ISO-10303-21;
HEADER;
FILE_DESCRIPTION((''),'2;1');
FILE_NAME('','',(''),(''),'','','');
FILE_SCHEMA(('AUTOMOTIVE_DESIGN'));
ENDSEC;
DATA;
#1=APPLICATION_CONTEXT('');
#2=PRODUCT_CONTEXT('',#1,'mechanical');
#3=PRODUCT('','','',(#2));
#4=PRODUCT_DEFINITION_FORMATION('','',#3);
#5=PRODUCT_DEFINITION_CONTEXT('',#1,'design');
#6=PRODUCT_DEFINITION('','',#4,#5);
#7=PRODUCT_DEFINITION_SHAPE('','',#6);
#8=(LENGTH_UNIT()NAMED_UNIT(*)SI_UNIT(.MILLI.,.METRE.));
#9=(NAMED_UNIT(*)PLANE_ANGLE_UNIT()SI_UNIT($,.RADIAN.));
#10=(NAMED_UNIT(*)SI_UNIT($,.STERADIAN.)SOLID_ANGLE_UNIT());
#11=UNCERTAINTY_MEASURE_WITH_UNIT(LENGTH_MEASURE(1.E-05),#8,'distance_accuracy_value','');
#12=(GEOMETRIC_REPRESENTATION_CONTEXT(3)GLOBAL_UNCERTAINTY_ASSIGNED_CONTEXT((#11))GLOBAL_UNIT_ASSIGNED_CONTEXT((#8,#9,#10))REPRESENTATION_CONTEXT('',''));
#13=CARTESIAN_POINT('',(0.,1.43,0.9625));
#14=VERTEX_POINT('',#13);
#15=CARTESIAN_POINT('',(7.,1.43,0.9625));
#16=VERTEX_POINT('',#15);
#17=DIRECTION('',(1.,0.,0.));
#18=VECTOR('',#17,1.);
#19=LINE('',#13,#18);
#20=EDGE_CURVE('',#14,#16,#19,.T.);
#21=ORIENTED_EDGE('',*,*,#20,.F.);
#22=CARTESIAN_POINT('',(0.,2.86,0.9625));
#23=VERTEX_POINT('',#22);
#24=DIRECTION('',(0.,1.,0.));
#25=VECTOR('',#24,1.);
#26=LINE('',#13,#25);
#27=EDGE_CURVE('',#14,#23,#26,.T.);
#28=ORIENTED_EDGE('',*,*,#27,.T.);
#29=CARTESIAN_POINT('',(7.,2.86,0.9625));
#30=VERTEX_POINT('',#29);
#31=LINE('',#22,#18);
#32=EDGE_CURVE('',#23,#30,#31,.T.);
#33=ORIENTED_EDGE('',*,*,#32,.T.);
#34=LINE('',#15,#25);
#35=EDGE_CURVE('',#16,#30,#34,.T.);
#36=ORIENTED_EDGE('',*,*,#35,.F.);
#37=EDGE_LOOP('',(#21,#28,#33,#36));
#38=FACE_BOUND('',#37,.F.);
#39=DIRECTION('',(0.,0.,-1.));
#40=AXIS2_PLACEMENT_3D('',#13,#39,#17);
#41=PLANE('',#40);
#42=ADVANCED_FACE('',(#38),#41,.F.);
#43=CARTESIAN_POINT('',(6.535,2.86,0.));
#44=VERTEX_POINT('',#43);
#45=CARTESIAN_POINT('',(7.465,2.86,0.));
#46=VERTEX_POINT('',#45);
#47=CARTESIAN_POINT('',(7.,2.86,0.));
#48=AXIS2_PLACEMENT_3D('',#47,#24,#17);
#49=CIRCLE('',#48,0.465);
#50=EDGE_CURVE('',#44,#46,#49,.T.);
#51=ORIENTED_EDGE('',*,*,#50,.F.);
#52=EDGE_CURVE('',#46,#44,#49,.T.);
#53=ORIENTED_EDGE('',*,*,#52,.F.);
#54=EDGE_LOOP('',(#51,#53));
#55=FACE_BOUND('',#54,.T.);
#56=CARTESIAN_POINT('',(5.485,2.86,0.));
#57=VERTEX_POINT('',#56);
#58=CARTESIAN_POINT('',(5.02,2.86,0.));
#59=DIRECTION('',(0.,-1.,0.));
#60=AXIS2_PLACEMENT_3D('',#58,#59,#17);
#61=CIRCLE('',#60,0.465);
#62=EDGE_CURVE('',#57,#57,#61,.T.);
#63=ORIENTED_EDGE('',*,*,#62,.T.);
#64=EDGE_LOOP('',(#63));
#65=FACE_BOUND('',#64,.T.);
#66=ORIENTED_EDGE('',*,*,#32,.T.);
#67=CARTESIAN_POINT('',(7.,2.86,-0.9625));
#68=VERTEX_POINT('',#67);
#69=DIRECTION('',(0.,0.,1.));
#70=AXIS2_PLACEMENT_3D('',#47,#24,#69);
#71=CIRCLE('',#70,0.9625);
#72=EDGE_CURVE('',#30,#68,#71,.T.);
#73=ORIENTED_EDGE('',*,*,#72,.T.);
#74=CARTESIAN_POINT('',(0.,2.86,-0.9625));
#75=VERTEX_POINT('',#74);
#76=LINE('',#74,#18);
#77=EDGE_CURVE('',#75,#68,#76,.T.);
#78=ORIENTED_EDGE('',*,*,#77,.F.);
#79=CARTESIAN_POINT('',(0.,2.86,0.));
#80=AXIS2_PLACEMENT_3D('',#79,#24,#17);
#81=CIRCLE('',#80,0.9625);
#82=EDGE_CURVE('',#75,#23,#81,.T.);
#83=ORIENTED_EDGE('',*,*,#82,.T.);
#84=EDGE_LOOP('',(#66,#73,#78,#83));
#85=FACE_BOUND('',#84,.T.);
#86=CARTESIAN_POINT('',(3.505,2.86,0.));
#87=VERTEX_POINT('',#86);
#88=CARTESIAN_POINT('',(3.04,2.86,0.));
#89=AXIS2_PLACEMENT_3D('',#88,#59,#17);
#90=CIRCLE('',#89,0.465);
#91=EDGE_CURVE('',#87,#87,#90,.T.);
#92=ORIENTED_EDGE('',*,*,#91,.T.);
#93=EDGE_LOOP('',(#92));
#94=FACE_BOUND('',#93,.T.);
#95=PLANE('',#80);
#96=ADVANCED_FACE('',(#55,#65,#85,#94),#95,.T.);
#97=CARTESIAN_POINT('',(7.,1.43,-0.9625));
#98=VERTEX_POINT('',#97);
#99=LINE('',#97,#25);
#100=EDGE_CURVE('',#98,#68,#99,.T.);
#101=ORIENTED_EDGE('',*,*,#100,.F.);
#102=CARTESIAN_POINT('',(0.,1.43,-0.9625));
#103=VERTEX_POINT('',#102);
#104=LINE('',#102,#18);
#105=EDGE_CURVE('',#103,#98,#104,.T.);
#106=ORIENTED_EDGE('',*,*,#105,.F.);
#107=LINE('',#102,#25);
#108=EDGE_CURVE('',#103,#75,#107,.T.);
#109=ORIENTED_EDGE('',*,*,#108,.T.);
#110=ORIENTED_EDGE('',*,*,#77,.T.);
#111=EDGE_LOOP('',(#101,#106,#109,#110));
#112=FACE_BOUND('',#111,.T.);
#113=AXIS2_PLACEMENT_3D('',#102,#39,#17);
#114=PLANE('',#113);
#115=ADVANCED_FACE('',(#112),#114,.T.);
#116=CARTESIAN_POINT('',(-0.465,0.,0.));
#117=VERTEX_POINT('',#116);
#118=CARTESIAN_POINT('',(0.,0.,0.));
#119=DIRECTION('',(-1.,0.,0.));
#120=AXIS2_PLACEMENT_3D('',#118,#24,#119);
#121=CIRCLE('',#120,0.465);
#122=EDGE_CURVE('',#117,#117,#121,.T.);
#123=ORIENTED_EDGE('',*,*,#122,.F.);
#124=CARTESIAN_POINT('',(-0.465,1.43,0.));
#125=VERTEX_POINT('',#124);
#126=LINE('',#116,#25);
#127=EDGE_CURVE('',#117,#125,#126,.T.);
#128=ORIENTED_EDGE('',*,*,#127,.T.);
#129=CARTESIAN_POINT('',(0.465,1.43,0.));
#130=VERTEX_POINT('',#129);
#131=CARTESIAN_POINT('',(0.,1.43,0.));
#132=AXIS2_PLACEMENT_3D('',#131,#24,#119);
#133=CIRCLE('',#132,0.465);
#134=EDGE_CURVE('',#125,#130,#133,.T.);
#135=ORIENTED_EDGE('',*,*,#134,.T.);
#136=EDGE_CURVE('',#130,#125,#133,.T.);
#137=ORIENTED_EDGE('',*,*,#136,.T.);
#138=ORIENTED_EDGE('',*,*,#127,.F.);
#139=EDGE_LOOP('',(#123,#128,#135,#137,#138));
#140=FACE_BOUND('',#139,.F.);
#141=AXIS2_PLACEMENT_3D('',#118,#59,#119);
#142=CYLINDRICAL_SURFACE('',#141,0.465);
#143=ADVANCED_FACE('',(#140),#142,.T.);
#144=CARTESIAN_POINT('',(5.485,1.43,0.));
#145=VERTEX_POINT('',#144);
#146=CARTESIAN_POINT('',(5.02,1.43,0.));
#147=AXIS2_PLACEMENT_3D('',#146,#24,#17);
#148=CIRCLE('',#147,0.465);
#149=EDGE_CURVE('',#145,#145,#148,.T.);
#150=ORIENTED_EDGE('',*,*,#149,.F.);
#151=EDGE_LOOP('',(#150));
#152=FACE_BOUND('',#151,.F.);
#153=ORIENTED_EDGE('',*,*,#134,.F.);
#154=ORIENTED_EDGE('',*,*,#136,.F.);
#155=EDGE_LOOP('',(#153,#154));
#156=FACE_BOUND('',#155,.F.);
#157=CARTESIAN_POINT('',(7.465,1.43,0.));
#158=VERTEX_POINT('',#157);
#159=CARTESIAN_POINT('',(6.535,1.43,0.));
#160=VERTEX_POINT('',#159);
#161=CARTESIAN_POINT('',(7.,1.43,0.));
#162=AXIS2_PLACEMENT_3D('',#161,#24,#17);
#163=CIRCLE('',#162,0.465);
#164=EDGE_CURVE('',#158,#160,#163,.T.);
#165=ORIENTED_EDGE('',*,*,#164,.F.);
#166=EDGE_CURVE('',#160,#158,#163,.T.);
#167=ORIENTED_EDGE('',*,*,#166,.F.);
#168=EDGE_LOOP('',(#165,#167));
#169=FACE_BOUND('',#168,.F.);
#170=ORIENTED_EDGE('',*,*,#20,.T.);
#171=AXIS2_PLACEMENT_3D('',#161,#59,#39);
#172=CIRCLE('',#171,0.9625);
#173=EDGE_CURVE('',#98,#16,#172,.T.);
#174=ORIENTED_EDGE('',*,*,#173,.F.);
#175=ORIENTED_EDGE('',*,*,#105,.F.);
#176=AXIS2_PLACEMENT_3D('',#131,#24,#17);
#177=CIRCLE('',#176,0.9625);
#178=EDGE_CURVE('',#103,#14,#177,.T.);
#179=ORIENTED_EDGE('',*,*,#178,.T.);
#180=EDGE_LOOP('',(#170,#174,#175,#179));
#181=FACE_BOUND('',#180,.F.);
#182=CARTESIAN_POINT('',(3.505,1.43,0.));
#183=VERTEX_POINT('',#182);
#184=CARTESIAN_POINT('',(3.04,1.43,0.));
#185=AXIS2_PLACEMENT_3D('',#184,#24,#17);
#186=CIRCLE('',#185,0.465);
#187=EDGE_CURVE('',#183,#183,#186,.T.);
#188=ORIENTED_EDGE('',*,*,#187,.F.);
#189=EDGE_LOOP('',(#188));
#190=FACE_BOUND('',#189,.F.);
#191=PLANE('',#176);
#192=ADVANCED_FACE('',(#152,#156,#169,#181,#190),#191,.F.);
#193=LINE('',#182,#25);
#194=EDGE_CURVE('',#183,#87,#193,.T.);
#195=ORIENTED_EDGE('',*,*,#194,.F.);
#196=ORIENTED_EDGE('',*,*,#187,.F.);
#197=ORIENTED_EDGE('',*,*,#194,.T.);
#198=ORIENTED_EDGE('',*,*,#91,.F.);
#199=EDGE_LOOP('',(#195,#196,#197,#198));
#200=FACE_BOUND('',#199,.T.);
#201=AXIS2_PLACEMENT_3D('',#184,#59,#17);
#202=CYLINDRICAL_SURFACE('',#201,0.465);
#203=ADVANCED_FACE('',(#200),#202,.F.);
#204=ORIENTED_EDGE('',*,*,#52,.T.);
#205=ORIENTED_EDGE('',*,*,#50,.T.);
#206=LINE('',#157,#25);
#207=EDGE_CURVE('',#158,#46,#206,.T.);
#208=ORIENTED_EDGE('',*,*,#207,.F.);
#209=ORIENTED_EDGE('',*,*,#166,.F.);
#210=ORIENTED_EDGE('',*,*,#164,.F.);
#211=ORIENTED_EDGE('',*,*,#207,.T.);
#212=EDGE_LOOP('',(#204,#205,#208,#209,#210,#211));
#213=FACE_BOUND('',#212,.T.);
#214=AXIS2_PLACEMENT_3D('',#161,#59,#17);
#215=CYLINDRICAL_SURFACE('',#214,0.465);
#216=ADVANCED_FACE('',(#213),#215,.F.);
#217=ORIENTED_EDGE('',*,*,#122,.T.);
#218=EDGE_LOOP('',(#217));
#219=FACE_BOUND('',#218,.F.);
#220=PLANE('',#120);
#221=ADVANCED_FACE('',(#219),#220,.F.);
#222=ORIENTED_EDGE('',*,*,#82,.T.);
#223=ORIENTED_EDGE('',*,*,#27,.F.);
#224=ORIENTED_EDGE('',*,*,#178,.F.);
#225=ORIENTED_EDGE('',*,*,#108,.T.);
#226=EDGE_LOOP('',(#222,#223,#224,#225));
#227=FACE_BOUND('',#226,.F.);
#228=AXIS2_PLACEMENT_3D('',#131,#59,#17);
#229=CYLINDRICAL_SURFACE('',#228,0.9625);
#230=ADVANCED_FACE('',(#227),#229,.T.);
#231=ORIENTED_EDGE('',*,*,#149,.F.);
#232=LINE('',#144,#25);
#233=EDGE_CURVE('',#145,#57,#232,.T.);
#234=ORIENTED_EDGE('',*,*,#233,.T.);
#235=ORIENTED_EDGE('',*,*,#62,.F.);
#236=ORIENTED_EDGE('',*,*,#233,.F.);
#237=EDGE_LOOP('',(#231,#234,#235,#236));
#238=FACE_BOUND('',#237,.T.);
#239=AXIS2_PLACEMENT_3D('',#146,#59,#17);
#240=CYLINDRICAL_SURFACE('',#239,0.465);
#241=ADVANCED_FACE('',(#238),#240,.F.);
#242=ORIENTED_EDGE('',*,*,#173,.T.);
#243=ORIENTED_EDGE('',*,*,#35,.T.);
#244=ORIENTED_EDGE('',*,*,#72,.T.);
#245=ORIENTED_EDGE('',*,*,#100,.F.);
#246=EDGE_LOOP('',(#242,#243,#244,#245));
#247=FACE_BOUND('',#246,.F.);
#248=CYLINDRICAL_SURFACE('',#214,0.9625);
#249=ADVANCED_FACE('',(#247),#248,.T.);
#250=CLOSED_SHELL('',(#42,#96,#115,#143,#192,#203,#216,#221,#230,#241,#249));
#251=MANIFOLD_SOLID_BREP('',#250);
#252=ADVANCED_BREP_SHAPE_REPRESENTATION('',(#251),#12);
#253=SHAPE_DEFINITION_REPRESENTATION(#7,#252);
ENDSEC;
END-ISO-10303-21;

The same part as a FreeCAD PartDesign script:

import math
import FreeCAD as App
import Part
import Sketcher

V = App.Vector

doc = App.newDocument("Part")
params = doc.addObject("Spreadsheet::Sheet", "Params")
for row, (alias, value) in enumerate([
    ("sketch1_diameter", "0.93 mm"),
    ("pad1_length", "1.43 mm"),
    ("sketch2_diameter", "0.93 mm"),
    ("sketch2_width", "7 mm"),
    ("pad2_length", "1.43 mm"),
], start=1):
    params.set(f"A{row}", alias)
    params.set(f"B{row}", "=" + value)
    params.setAlias(f"B{row}", alias)

body = doc.addObject("PartDesign::Body", "Body")

# Sketch on XZ plane
sketch1 = doc.addObject("Sketcher::SketchObject", "Sketch")
body.addObject(sketch1)
sketch1.AttachmentSupport = (doc.XZ_Plane, [""])
sketch1.MapMode = "FlatFace"
sketch1.addGeometry(Part.Circle(V(0, 0, 0), V(0, 0, 1), 0.47), False)
sketch1.addConstraint(Sketcher.Constraint("Coincident", 0, 3, -1, 1))
sketch1.addConstraint(Sketcher.Constraint("Diameter", 0, 0.93))
sketch1.setExpression("Constraints[1]", "Params.sketch1_diameter")
pad1 = doc.addObject("PartDesign::Pad", "Pad")
body.addObject(pad1)
pad1.Profile = sketch1
pad1.setExpression("Length", "Params.pad1_length")
pad1.Reversed = True

# Sketch on XZ plane
sketch2 = doc.addObject("Sketcher::SketchObject", "Sketch001")
body.addObject(sketch2)
sketch2.AttachmentSupport = (doc.XZ_Plane, [""])
sketch2.MapMode = "FlatFace"
sketch2.AttachmentOffset = App.Placement(V(0, 0, -1.43), App.Rotation())
sketch2.addGeometry(Part.ArcOfCircle(Part.Circle(V(0, 0, 0), V(0, 0, 1), 0.96), math.radians(90), math.radians(270)), False)
sketch2.addGeometry(Part.LineSegment(V(0, 0.96, 0), V(7, 0.96, 0)), False)
sketch2.addGeometry(Part.ArcOfCircle(Part.Circle(V(7, 0, 0), V(0, 0, 1), 0.96), math.radians(-90), math.radians(90)), False)
sketch2.addGeometry(Part.LineSegment(V(7, -0.96, 0), V(0, -0.96, 0)), False)
sketch2.addGeometry(Part.Circle(V(3.04, 0, 0), V(0, 0, 1), 0.47), False)
sketch2.addGeometry(Part.Circle(V(5.02, 0, 0), V(0, 0, 1), 0.47), False)
sketch2.addGeometry(Part.Circle(V(7, 0, 0), V(0, 0, 1), 0.47), False)
sketch2.addConstraint(Sketcher.Constraint("Tangent", 0, 1, 1, 1))
sketch2.addConstraint(Sketcher.Constraint("Tangent", 1, 2, 2, 2))
sketch2.addConstraint(Sketcher.Constraint("Tangent", 2, 1, 3, 1))
sketch2.addConstraint(Sketcher.Constraint("Tangent", 3, 2, 0, 2))
sketch2.addConstraint(Sketcher.Constraint("Horizontal", 1))
sketch2.addConstraint(Sketcher.Constraint("Horizontal", 3))
sketch2.addConstraint(Sketcher.Constraint("Coincident", 0, 3, -1, 1))
sketch2.addConstraint(Sketcher.Constraint("Coincident", 6, 3, 2, 3))
sketch2.addConstraint(Sketcher.Constraint("Equal", 4, 5))
sketch2.addConstraint(Sketcher.Constraint("Equal", 5, 6))
sketch2.addConstraint(Sketcher.Constraint("PointOnObject", 4, 3, -1))
sketch2.addConstraint(Sketcher.Constraint("PointOnObject", 5, 3, -1))
sketch2.addConstraint(Sketcher.Constraint("Diameter", 4, 0.93))
sketch2.addConstraint(Sketcher.Constraint("DistanceX", 1, 1, 1, 2, 7.0))
sketch2.addConstraint(Sketcher.Constraint("Radius", 0, 0.9625))
sketch2.addConstraint(Sketcher.Constraint("DistanceX", 4, 3, 5, 3, 1.98))
sketch2.addConstraint(Sketcher.Constraint("DistanceX", 5, 3, 2, 3, 1.98))
sketch2.setExpression("Constraints[12]", "Params.sketch2_diameter")
sketch2.setExpression("Constraints[13]", "Params.sketch2_width")
pad2 = doc.addObject("PartDesign::Pad", "Pad001")
body.addObject(pad2)
pad2.Profile = sketch2
pad2.setExpression("Length", "Params.pad2_length")
pad2.Reversed = True

doc.recompute()
